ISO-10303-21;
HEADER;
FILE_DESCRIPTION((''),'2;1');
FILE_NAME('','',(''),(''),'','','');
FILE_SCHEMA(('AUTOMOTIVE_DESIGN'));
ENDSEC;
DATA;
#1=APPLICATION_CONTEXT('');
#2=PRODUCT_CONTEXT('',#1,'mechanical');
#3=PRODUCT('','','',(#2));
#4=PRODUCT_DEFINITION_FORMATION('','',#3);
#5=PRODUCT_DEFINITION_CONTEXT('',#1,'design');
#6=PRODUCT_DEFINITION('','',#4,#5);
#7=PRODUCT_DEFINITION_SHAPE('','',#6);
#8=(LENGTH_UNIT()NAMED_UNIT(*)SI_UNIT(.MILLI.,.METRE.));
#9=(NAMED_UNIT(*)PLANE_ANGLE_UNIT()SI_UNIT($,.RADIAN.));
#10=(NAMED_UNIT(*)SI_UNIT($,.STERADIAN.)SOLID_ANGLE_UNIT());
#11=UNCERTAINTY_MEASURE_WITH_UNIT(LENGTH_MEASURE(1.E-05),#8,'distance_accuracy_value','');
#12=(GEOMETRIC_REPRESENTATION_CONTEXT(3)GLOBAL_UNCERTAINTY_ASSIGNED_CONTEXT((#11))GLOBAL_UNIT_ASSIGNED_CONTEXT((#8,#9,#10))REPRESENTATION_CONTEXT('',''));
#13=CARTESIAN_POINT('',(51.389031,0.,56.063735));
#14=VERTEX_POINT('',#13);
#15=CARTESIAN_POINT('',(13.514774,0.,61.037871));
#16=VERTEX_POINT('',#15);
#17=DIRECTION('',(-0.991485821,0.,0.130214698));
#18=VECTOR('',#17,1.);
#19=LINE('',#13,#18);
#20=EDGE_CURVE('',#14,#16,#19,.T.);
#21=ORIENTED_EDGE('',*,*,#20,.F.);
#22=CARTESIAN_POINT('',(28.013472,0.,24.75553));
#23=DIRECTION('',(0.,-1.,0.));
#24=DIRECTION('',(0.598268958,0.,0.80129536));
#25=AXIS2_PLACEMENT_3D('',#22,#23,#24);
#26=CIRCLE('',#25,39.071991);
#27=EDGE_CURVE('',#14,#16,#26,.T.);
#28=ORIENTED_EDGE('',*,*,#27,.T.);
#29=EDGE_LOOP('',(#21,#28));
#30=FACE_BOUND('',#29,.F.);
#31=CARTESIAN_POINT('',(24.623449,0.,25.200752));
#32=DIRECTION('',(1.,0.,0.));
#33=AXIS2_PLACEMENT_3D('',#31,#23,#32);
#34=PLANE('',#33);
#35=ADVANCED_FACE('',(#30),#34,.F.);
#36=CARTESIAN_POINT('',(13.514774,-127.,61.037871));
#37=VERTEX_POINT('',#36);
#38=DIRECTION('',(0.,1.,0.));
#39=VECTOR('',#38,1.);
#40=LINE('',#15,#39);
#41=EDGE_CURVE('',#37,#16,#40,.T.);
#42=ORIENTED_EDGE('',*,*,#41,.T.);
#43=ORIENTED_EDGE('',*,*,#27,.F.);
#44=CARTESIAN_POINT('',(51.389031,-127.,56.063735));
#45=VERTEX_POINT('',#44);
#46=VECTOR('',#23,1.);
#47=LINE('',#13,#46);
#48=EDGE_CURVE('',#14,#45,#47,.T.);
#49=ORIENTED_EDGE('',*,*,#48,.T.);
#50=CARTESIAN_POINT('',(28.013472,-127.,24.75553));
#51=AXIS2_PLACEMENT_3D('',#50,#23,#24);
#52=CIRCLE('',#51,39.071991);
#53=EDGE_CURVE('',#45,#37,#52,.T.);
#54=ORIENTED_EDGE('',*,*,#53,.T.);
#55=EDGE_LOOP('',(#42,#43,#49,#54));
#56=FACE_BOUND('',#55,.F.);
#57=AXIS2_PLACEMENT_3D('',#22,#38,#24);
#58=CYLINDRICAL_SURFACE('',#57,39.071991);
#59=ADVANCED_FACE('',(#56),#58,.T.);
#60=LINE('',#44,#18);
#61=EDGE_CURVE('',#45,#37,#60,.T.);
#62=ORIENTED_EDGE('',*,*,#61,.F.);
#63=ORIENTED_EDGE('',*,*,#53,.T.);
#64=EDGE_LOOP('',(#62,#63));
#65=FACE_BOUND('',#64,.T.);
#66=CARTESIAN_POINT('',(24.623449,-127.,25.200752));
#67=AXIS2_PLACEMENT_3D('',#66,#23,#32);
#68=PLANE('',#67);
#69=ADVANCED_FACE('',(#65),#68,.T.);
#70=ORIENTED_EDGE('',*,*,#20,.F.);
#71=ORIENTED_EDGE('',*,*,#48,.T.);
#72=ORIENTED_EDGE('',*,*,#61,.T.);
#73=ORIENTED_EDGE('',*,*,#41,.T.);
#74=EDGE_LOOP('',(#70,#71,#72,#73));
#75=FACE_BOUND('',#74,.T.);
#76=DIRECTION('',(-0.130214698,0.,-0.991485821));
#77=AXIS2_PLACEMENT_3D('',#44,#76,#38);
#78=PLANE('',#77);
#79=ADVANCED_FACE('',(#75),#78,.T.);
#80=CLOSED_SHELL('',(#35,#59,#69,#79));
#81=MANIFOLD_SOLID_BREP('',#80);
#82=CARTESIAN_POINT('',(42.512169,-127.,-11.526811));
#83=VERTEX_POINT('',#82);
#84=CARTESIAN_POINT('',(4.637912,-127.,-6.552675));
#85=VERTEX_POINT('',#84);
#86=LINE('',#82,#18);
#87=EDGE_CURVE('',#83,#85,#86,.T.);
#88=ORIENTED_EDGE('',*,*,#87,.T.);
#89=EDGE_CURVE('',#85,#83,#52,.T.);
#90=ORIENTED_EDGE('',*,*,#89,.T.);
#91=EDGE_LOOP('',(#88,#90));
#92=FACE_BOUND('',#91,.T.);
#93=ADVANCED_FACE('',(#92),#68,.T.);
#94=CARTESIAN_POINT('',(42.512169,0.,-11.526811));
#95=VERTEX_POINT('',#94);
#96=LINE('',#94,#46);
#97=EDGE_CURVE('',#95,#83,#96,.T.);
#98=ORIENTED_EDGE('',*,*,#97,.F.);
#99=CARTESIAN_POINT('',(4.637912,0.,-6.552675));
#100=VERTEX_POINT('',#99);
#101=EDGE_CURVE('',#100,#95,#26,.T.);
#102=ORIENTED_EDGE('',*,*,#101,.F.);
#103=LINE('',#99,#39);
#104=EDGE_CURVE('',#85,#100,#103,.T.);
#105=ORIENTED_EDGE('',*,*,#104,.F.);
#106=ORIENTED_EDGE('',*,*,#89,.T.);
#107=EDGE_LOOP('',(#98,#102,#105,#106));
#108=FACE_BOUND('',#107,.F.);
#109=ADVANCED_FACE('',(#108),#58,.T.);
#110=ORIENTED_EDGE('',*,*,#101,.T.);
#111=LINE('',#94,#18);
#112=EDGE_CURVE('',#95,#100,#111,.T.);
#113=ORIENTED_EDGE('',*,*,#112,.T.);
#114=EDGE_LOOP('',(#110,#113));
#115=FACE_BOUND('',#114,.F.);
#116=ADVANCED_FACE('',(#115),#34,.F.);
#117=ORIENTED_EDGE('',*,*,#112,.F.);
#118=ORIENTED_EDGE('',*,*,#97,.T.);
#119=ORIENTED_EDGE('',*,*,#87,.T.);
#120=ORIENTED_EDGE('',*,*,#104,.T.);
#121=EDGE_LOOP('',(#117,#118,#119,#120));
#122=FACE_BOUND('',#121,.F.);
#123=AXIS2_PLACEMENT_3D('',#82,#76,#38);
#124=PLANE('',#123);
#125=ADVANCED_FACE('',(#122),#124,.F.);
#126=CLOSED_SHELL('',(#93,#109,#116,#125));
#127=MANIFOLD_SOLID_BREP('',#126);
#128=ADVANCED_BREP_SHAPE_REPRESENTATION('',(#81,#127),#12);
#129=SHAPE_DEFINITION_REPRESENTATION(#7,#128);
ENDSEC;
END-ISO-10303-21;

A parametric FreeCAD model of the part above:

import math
import FreeCAD as App
import Part
import Sketcher

V = App.Vector
Q = App.Units.Quantity


def add_polygon(sketch, points):
    """Adds a closed chain of lines whose ends are joined by coincident constraints."""
    first, n = sketch.GeometryCount, len(points)
    for a, b in zip(points, points[1:] + points[:1]):
        sketch.addGeometry(Part.LineSegment(App.Vector(*a, 0), App.Vector(*b, 0)), False)
    for i in range(n):
        sketch.addConstraint(Sketcher.Constraint("Coincident", first + i, 2, first + (i + 1) % n, 1))

doc = App.newDocument("Part")
body = doc.addObject("PartDesign::Body", "Body")
body.AllowCompound = True

# Sketch on XZ plane
sketch1 = doc.addObject("Sketcher::SketchObject", "Sketch")
body.addObject(sketch1)
sketch1.AttachmentSupport = (doc.XZ_Plane, [""])
sketch1.MapMode = "FlatFace"
sketch1.addGeometry([
    Part.LineSegment(V(42.512169, -11.526811, 0), V(51.389031, 56.063735, 0)),
    Part.ArcOfCircle(Part.Circle(V(28.013472, 24.75553, 0), V(0, 0, 1), 39.071991), math.radians(53.253979), math.radians(291.782023)),
], False)
sketch1.addConstraint([
    Sketcher.Constraint("Coincident", 0, 1, 1, 2),
    Sketcher.Constraint("Coincident", 1, 1, 0, 2),
    Sketcher.Constraint("Radius", 1, Q("39.071991 mm")),
    Sketcher.Constraint("DistanceX", -1, 1, 1, 3, Q("28.013472 mm")),
    Sketcher.Constraint("DistanceY", -1, 1, 1, 3, Q("24.75553 mm")),
    Sketcher.Constraint("DistanceX", -1, 1, 0, 1, Q("42.512169 mm")),
    Sketcher.Constraint("DistanceX", -1, 1, 1, 1, Q("51.389031 mm")),
])
pad1 = doc.addObject("PartDesign::Pad", "Pad")
body.addObject(pad1)
pad1.Profile = sketch1
pad1.Length = Q("5 in")

# Sketch on an angled plane
sketch2 = doc.addObject("Sketcher::SketchObject", "Sketch001")
body.addObject(sketch2)
sketch2.Placement = App.Placement(V(43.279519, 0, -5.684024), App.Rotation(V(0, 1, 0), V(0.130214698, 0, 0.991485821), V(0.991485821, 0, -0.130214698), "ZXY"))
add_polygon(sketch2, [(-127, 62.278006), (-127, -5.89296), (0, -5.89296), (0, 62.278006)])  # lines 0-3
sketch2.addConstraint([
    Sketcher.Constraint("Vertical", 0),
    Sketcher.Constraint("Horizontal", 1),
    Sketcher.Constraint("Vertical", 2),
    Sketcher.Constraint("Horizontal", 3),
    Sketcher.Constraint("PointOnObject", 1, 2, -2),
    Sketcher.Constraint("DistanceX", 1, 1, 1, 2, Q("5 in")),
    Sketcher.Constraint("DistanceY", 0, 2, 0, 1, Q("68.170966 mm")),
    Sketcher.Constraint("DistanceY", 0, 2, -1, 1, Q("5.89296 mm")),
])
pocket1 = doc.addObject("PartDesign::Pocket", "Pocket")
body.addObject(pocket1)
pocket1.Profile = sketch2
pocket1.Type = "ThroughAll"

doc.recompute()
